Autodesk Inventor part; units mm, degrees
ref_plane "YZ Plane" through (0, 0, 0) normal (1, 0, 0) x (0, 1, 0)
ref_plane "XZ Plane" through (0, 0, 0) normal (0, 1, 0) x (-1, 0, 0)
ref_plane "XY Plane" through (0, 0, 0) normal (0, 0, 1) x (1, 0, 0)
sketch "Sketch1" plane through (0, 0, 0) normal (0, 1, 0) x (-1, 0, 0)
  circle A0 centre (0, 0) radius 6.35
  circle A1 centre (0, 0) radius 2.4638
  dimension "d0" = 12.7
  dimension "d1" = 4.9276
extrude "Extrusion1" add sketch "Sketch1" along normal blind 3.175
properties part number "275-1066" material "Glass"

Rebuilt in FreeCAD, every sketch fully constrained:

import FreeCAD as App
import Part
import Sketcher

V = App.Vector
Q = App.Units.Quantity

doc = App.newDocument("Part")
body = doc.addObject("PartDesign::Body", "Body")

# Sketch on XZ plane
sketch1 = body.newObject("Sketcher::SketchObject", "Sketch")
sketch1.AttachmentSupport = (doc.getObject("XZ_Plane"), [""])
sketch1.MapMode = "FlatFace"
sketch1.addGeometry([
    Part.Circle(V(0, 0, 0), V(0, 0, 1), 6.35),
    Part.Circle(V(0, 0, 0), V(0, 0, 1), 2.4638),
], False)
sketch1.addConstraint([
    Sketcher.Constraint("Coincident", 0, 3, -1, 1),
    Sketcher.Constraint("Coincident", 1, 3, -1, 1),
    Sketcher.Constraint("Diameter", 0, Q("0.5 in")),
    Sketcher.Constraint("Diameter", 1, Q("0.194 in")),
])
pad1 = body.newObject("PartDesign::Pad", "Pad")
pad1.Profile = sketch1
pad1.Length = Q("0.125 in")
pad1.Reversed = True

doc.recompute()
